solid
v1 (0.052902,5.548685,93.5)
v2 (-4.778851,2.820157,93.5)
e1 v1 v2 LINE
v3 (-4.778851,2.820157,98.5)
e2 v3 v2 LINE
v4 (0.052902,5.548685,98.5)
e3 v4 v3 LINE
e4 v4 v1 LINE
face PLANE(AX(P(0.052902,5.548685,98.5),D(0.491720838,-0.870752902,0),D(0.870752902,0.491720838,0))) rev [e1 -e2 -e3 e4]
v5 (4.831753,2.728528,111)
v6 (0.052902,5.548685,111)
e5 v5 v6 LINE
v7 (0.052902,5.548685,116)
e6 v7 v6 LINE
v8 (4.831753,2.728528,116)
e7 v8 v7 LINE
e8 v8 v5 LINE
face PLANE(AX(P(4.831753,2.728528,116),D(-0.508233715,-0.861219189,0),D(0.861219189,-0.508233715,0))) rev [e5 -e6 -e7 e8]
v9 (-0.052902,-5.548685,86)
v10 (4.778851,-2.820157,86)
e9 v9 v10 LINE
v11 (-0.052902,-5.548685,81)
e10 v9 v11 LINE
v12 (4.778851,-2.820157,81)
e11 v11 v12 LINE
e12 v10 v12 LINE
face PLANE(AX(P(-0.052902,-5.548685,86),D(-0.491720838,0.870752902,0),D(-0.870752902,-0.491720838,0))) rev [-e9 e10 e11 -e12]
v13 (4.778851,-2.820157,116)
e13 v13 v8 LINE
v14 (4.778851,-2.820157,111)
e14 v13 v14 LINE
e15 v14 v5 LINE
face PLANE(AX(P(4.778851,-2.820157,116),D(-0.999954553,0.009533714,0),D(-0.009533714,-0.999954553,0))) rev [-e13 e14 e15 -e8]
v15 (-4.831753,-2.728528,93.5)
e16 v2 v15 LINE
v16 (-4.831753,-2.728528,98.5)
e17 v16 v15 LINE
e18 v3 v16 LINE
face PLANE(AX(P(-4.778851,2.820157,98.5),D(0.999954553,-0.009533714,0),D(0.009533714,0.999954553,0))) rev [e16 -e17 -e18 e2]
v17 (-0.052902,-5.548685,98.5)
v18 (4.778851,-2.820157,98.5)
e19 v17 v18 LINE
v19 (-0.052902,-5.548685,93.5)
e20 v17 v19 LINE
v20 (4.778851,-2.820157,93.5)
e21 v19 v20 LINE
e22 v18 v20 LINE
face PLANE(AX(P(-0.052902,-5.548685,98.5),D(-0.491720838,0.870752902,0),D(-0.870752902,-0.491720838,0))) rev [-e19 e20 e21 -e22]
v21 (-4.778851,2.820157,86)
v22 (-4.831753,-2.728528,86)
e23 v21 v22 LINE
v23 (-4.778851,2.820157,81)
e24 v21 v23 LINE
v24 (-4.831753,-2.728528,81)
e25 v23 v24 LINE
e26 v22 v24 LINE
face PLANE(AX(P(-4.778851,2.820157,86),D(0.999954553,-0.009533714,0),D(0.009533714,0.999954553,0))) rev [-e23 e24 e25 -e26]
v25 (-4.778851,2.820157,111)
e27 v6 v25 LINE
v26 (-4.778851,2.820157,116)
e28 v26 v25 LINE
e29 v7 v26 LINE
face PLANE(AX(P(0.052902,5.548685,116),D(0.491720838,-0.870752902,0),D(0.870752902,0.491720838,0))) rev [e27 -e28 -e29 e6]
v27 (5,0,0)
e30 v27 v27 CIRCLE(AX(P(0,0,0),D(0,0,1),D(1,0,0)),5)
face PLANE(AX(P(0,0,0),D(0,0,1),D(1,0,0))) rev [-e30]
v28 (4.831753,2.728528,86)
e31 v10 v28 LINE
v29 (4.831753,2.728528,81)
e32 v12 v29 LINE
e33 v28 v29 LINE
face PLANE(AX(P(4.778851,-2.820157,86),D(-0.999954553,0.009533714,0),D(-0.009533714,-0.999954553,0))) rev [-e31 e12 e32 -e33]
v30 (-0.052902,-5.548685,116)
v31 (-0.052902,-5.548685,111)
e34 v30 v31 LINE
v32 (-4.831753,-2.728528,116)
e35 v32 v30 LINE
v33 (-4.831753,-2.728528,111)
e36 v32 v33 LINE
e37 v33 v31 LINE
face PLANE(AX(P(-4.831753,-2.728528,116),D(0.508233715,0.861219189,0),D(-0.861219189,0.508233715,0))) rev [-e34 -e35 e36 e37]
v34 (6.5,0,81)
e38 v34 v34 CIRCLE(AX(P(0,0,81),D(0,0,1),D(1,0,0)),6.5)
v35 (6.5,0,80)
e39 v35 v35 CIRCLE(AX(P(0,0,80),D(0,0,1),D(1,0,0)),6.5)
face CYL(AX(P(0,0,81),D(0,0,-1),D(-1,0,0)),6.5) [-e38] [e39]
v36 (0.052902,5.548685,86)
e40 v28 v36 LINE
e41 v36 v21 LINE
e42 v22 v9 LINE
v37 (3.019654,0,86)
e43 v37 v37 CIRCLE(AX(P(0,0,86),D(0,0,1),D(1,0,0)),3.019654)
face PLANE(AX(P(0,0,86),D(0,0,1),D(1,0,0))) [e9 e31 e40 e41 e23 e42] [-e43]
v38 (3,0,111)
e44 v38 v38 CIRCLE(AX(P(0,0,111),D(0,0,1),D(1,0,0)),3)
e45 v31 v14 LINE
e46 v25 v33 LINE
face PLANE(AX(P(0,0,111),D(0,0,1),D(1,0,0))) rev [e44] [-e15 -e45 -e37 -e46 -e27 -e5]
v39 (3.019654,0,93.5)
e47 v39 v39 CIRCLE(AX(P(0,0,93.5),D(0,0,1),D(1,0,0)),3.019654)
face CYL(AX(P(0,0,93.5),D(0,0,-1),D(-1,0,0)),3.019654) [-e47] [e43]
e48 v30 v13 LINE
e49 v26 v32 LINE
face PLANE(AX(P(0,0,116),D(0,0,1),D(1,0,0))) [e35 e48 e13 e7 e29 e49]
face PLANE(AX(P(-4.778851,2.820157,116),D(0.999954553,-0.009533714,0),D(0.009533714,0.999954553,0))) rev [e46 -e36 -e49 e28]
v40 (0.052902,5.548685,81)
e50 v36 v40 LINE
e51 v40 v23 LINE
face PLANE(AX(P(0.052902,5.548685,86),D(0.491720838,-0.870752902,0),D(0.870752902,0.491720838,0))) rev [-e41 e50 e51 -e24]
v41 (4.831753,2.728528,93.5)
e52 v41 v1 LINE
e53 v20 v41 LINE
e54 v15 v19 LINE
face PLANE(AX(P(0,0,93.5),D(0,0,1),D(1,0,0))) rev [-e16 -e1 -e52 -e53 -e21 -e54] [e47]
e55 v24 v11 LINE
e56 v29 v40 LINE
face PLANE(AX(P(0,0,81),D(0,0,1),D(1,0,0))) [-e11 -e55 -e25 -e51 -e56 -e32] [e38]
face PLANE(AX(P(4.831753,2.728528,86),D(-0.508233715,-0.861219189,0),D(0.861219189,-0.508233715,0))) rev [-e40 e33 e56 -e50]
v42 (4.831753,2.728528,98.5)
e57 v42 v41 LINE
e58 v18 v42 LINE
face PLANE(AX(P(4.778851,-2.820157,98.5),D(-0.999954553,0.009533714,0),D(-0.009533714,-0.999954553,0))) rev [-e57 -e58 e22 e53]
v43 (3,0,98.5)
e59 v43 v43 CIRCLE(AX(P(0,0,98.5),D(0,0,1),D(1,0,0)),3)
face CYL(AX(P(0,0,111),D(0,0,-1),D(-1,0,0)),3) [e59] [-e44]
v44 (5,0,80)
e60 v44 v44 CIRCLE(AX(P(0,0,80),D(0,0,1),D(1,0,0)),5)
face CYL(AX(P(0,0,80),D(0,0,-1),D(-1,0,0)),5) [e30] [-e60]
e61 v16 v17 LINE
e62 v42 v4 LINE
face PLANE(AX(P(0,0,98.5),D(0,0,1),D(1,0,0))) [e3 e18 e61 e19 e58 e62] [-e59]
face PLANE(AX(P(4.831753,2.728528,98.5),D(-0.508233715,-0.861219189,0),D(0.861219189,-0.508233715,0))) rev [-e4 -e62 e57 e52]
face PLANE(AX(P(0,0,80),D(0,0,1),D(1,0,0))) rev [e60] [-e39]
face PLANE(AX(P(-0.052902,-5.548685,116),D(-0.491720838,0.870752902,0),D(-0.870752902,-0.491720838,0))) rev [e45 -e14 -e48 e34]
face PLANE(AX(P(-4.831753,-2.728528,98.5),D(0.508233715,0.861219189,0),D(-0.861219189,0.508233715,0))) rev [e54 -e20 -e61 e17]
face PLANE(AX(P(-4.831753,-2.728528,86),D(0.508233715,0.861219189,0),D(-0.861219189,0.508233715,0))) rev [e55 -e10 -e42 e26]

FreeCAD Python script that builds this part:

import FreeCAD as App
import Part
import Sketcher
from FreeCAD import Vector
Q = App.Units.Quantity


def add_polygon(sketch, points):
    """Adds a closed chain of lines whose ends are joined by coincident constraints."""
    first, n = sketch.GeometryCount, len(points)
    for a, b in zip(points, points[1:] + points[:1]):
        sketch.addGeometry(Part.LineSegment(App.Vector(*a, 0), App.Vector(*b, 0)), False)
    for i in range(n):
        sketch.addConstraint(Sketcher.Constraint("Coincident", first + i, 2, first + (i + 1) % n, 1))

doc = App.newDocument("Part")
body = doc.addObject("PartDesign::Body", "Body")

sketch1 = body.newObject("Sketcher::SketchObject", "Sketch")
sketch1.AttachmentSupport = (doc.getObject("XY_Plane"), [""])
sketch1.MapMode = "FlatFace"
sketch1.addGeometry(Part.Circle(Vector(0, 0, 0), Vector(0, 0, 1), 5), False)
sketch1.addConstraint([
    Sketcher.Constraint("Coincident", 0, 3, -1, 1),
    Sketcher.Constraint("Diameter", 0, Q("10 mm")),
])
pad1 = body.newObject("PartDesign::Pad", "Pad")
pad1.Profile = sketch1
pad1.Length = 80

sketch2 = body.newObject("Sketcher::SketchObject", "Sketch001")
sketch2.AttachmentSupport = (doc.getObject("XY_Plane"), [""])
sketch2.MapMode = "FlatFace"
sketch2.AttachmentOffset = App.Placement(Vector(0, 0, 80), App.Rotation())
sketch2.addGeometry(Part.Circle(Vector(0, 0, 0), Vector(0, 0, 1), 6), False)
sketch2.addConstraint([
    Sketcher.Constraint("Coincident", 0, 3, -1, 1),
    Sketcher.Constraint("Diameter", 0, Q("13 mm")),
])
pad2 = body.newObject("PartDesign::Pad", "Pad001")
pad2.Profile = sketch2
pad2.Length = 1

sketch3 = body.newObject("Sketcher::SketchObject", "Sketch002")
sketch3.AttachmentSupport = (doc.getObject("XY_Plane"), [""])
sketch3.MapMode = "FlatFace"
sketch3.AttachmentOffset = App.Placement(Vector(0, 0, 81), App.Rotation())
add_polygon(sketch3, [(5, -3), (5, 3), (0, 6), (-5, 3), (-5, -3), (0, -6)])
sketch3.addConstraint([
    Sketcher.Constraint("Symmetric", 0, 2, 3, 2, -1, 1),
    Sketcher.Constraint("Symmetric", 1, 2, 4, 2, -1, 1),
    Sketcher.Constraint("Symmetric", 2, 2, 5, 2, -1, 1),
    Sketcher.Constraint("Equal", 0, 1),
    Sketcher.Constraint("Equal", 1, 2),
    Sketcher.Constraint("DistanceX", -1, 1, 1, 2, Q("0.052902 mm")),
    Sketcher.Constraint("DistanceX", 3, 2, 2, 2, Q("0.052902 mm")),
    Sketcher.Constraint("DistanceY", -1, 1, 0, 2, Q("2.728528 mm")),
    Sketcher.Constraint("DistanceX", 2, 2, -1, 1, Q("4.778851 mm")),
])
pad3 = body.newObject("PartDesign::Pad", "Pad002")
pad3.Profile = sketch3
pad3.Length = 5

sketch4 = body.newObject("Sketcher::SketchObject", "Sketch003")
sketch4.AttachmentSupport = (doc.getObject("XY_Plane"), [""])
sketch4.MapMode = "FlatFace"
sketch4.AttachmentOffset = App.Placement(Vector(0, 0, 86), App.Rotation())
sketch4.addGeometry(Part.Circle(Vector(0, 0, 0), Vector(0, 0, 1), 3), False)
sketch4.addConstraint([
    Sketcher.Constraint("Coincident", 0, 3, -1, 1),
    Sketcher.Constraint("Diameter", 0, Q("6.039307 mm")),
])
pad4 = body.newObject("PartDesign::Pad", "Pad003")
pad4.Profile = sketch4
pad4.Length = 7.5

sketch5 = body.newObject("Sketcher::SketchObject", "Sketch004")
sketch5.AttachmentSupport = (doc.getObject("XY_Plane"), [""])
sketch5.MapMode = "FlatFace"
sketch5.AttachmentOffset = App.Placement(Vector(0, 0, 93.5), App.Rotation())
add_polygon(sketch5, [(5, -3), (5, 3), (0, 6), (-5, 3), (-5, -3), (0, -6)])
sketch5.addConstraint([
    Sketcher.Constraint("Symmetric", 0, 2, 3, 2, -1, 1),
    Sketcher.Constraint("Symmetric", 1, 2, 4, 2, -1, 1),
    Sketcher.Constraint("Symmetric", 2, 2, 5, 2, -1, 1),
    Sketcher.Constraint("Equal", 0, 1),
    Sketcher.Constraint("Equal", 1, 2),
    Sketcher.Constraint("DistanceX", -1, 1, 1, 2, Q("0.052902 mm")),
    Sketcher.Constraint("DistanceX", 3, 2, 2, 2, Q("0.052902 mm")),
    Sketcher.Constraint("DistanceY", -1, 1, 0, 2, Q("2.728528 mm")),
    Sketcher.Constraint("DistanceX", 2, 2, -1, 1, Q("4.778851 mm")),
])
pad5 = body.newObject("PartDesign::Pad", "Pad004")
pad5.Profile = sketch5
pad5.Length = 5

sketch6 = body.newObject("Sketcher::SketchObject", "Sketch005")
sketch6.AttachmentSupport = (doc.getObject("XY_Plane"), [""])
sketch6.MapMode = "FlatFace"
sketch6.AttachmentOffset = App.Placement(Vector(0, 0, 98.5), App.Rotation())
sketch6.addGeometry(Part.Circle(Vector(0, 0, 0), Vector(0, 0, 1), 3), False)
sketch6.addConstraint([
    Sketcher.Constraint("Coincident", 0, 3, -1, 1),
    Sketcher.Constraint("Diameter", 0, Q("6 mm")),
])
pad6 = body.newObject("PartDesign::Pad", "Pad005")
pad6.Profile = sketch6
pad6.Length = 12.5

sketch7 = body.newObject("Sketcher::SketchObject", "Sketch006")
sketch7.AttachmentSupport = (doc.getObject("XY_Plane"), [""])
sketch7.MapMode = "FlatFace"
sketch7.AttachmentOffset = App.Placement(Vector(0, 0, 111), App.Rotation())
add_polygon(sketch7, [(5, -3), (5, 3), (0, 6), (-5, 3), (-5, -3), (0, -6)])
sketch7.addConstraint([
    Sketcher.Constraint("Symmetric", 0, 2, 3, 2, -1, 1),
    Sketcher.Constraint("Symmetric", 1, 2, 4, 2, -1, 1),
    Sketcher.Constraint("Symmetric", 2, 2, 5, 2, -1, 1),
    Sketcher.Constraint("Equal", 0, 1),
    Sketcher.Constraint("Equal", 1, 2),
    Sketcher.Constraint("DistanceX", -1, 1, 1, 2, Q("0.052902 mm")),
    Sketcher.Constraint("DistanceX", 3, 2, 2, 2, Q("0.052902 mm")),
    Sketcher.Constraint("DistanceY", -1, 1, 0, 2, Q("2.728528 mm")),
    Sketcher.Constraint("DistanceX", 2, 2, -1, 1, Q("4.778851 mm")),
])
pad7 = body.newObject("PartDesign::Pad", "Pad006")
pad7.Profile = sketch7
pad7.Length = 5

doc.recompute()
